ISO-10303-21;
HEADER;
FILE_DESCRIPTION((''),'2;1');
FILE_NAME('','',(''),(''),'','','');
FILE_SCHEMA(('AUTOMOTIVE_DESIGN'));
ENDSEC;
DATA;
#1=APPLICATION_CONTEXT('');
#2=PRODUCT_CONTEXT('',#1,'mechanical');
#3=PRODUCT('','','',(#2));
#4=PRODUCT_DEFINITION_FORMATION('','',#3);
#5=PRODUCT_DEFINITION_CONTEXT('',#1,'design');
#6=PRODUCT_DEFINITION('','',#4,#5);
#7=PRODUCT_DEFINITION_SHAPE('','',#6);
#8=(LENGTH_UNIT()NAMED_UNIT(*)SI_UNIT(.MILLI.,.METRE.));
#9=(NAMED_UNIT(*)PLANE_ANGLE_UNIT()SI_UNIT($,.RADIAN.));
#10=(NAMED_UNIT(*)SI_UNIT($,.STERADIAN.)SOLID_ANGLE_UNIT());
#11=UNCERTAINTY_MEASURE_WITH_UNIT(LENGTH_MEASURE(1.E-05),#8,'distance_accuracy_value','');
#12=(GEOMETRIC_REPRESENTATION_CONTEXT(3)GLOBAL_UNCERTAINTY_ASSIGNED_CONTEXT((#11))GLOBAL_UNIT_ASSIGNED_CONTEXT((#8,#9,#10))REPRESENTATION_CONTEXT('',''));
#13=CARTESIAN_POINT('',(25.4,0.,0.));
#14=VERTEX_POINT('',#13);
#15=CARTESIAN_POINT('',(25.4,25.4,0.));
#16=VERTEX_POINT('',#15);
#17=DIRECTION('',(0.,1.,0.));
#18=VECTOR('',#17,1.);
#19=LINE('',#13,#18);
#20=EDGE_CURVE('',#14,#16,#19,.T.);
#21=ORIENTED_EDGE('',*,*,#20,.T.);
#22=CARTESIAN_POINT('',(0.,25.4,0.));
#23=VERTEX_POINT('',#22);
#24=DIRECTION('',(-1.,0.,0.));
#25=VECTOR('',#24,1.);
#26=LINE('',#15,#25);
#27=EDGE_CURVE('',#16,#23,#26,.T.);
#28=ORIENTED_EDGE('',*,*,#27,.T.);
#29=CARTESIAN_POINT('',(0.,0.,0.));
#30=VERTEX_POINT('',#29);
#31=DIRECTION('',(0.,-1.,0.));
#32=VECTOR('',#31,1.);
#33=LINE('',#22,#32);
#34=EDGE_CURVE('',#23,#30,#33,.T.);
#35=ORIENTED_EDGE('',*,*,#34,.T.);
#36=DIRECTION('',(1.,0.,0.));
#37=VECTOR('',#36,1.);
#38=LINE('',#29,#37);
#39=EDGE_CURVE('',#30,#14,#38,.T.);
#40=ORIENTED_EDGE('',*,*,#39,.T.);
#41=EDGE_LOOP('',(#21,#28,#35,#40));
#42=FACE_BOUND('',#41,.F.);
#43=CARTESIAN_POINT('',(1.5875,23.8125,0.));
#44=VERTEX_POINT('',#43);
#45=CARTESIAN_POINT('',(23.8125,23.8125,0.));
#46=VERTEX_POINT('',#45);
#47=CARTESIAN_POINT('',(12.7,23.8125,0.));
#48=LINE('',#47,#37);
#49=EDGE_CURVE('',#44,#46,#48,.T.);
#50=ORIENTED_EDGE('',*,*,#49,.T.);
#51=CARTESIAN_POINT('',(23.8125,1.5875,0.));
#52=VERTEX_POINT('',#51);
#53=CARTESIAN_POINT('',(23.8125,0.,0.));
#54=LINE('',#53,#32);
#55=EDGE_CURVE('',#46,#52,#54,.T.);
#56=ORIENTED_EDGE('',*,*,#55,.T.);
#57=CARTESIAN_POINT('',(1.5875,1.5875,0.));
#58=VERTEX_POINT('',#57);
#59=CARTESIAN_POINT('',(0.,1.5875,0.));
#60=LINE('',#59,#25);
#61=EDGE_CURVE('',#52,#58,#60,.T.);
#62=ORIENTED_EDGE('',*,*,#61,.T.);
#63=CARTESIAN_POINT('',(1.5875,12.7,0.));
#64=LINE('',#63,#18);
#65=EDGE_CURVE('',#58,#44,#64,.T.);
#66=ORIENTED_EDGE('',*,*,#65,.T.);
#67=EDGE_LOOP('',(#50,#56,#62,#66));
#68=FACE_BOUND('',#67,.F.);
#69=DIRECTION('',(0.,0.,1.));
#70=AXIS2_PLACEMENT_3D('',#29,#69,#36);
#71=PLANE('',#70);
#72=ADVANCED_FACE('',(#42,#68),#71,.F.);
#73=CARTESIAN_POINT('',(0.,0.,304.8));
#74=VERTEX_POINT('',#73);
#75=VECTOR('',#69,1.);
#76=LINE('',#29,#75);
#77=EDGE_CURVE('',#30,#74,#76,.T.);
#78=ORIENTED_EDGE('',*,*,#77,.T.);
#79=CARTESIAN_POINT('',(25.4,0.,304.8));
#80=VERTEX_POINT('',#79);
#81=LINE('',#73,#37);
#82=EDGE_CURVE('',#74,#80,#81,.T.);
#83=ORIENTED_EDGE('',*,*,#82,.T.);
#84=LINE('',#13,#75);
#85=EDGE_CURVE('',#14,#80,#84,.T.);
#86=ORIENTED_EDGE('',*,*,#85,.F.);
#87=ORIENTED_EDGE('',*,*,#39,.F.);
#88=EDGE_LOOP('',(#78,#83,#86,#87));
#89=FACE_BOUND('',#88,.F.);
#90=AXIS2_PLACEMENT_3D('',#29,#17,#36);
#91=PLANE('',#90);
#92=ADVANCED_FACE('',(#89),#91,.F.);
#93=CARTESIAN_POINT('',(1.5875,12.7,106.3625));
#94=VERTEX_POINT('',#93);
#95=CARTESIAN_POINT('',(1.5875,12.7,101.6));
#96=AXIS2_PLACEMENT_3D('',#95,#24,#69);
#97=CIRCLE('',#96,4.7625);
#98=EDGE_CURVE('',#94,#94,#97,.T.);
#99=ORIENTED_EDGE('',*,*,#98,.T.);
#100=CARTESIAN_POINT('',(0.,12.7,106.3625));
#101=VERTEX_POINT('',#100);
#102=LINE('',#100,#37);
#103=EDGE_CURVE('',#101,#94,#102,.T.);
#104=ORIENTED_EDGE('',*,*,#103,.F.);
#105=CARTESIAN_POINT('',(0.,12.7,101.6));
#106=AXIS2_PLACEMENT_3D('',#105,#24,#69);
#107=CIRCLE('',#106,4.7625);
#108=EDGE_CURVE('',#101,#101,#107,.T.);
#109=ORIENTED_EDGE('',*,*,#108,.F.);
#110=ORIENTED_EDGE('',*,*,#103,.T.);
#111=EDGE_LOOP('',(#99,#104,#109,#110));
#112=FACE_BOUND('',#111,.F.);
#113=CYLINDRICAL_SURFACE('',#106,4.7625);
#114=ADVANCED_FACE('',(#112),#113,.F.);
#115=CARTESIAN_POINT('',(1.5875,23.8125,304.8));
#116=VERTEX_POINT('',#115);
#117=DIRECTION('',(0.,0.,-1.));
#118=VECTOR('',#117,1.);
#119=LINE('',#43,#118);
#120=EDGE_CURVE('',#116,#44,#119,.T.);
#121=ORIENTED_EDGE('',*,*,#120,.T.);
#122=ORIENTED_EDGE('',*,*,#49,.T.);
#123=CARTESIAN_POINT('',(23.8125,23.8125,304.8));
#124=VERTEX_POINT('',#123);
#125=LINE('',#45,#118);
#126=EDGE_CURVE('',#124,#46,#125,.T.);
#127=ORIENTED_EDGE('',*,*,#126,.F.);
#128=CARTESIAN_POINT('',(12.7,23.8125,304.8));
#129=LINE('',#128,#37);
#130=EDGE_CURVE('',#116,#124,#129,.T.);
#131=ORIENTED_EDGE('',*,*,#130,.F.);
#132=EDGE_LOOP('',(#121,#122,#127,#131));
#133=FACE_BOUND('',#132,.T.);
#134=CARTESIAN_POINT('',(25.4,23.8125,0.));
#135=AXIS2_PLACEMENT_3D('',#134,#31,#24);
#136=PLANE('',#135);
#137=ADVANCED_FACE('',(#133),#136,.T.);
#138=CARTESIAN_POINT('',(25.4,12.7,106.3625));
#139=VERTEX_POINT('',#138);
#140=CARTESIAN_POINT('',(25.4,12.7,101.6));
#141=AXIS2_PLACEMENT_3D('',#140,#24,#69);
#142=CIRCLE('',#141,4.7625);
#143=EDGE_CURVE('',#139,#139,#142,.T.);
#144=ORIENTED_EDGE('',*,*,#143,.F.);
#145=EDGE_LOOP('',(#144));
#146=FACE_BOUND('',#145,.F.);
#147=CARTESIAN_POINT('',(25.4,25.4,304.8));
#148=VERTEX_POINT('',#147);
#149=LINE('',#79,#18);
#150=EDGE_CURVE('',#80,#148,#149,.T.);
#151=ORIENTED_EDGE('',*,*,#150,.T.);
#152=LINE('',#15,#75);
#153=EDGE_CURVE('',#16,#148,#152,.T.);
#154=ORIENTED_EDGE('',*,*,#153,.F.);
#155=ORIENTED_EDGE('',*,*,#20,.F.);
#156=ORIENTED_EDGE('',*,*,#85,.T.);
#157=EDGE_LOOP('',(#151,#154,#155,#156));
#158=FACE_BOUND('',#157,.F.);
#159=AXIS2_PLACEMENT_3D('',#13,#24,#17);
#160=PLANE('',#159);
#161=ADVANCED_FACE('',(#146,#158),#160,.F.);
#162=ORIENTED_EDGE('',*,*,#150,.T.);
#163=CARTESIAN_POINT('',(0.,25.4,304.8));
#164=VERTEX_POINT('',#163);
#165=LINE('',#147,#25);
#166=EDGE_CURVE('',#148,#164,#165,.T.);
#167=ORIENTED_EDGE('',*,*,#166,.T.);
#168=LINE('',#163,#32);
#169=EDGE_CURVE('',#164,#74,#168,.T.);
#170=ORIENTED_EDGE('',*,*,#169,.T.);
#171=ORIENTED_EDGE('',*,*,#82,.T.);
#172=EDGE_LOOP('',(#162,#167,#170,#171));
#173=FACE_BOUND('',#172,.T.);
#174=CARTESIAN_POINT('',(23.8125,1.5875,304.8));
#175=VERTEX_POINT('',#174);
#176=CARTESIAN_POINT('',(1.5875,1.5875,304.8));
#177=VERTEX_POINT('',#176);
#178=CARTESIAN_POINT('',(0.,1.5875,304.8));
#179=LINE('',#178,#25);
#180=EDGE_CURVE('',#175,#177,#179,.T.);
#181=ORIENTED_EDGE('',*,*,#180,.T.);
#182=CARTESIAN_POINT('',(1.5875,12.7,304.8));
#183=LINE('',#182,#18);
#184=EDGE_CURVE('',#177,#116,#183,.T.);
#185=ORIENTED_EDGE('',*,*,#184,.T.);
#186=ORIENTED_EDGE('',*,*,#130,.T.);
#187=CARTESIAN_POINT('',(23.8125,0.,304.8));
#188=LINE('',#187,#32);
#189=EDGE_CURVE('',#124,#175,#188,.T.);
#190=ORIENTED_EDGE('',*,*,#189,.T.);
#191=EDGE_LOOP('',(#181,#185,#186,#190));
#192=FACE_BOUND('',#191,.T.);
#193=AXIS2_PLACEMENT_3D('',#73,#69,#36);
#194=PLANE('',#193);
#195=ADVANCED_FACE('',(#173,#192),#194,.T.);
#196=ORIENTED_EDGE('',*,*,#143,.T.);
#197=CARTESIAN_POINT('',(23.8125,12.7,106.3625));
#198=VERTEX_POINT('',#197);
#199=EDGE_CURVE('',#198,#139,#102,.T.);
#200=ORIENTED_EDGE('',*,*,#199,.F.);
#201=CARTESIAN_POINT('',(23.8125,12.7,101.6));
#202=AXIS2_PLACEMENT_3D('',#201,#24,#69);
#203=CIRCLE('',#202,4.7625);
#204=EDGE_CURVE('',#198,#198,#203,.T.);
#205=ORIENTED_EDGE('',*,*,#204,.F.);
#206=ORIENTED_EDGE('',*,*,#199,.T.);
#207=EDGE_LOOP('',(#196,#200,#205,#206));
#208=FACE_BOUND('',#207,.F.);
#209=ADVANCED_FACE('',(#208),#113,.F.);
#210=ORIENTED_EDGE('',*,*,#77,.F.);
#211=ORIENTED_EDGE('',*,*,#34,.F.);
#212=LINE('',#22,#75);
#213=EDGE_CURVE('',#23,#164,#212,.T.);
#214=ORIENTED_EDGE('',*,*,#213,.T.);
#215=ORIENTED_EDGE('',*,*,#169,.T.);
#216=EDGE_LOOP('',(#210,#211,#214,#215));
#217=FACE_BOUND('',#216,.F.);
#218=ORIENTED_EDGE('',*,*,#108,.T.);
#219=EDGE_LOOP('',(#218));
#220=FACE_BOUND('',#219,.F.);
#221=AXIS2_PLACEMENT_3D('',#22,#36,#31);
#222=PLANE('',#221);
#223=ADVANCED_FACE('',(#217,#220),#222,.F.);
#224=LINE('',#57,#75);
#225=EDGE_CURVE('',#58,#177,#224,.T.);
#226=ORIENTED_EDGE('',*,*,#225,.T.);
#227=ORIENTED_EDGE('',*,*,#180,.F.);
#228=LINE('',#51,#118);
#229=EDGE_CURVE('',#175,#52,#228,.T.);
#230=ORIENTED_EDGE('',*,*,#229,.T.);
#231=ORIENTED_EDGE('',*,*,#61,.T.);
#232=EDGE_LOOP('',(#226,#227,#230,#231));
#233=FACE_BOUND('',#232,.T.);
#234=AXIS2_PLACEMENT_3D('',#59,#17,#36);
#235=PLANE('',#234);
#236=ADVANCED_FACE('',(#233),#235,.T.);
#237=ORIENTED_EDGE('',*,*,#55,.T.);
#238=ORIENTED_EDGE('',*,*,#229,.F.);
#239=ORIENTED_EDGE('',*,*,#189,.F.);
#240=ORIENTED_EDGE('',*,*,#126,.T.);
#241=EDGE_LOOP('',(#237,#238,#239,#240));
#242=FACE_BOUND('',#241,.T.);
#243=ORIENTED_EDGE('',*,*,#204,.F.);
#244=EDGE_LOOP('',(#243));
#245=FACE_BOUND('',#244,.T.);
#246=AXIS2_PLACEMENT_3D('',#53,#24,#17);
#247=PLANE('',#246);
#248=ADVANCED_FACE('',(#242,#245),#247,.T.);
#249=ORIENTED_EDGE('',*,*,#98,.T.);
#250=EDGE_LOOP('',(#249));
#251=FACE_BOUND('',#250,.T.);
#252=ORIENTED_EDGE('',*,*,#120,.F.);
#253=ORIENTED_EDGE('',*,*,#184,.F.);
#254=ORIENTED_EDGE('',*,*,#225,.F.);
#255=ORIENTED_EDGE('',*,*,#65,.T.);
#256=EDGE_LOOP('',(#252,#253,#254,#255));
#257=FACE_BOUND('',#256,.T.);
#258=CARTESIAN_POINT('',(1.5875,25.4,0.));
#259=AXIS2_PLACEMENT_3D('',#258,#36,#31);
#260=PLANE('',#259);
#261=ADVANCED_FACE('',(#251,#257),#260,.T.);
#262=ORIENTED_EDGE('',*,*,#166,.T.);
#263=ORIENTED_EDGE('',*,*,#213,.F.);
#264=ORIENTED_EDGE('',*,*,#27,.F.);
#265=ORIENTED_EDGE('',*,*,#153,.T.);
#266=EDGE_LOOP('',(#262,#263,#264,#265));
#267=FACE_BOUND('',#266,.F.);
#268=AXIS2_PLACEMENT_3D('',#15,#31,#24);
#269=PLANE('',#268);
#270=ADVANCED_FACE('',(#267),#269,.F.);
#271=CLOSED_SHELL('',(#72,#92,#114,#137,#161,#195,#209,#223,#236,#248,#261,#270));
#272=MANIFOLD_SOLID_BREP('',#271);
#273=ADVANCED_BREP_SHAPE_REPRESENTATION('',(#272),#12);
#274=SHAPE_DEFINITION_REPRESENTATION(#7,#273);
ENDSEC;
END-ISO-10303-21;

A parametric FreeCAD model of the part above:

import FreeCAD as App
import Part
import Sketcher
from FreeCAD import Vector
Q = App.Units.Quantity


def faces_at(feature, points):
    """Names of the faces that lie closest to the given points."""
    faces = feature.Shape.Faces
    near = lambda p: min(range(len(faces)), key=lambda i: faces[i].distToShape(Part.Vertex(*p))[0])
    return sorted({f"Face{near(p) + 1}" for p in points})


def add_polygon(sketch, points):
    """Adds a closed chain of lines whose ends are joined by coincident constraints."""
    first, n = sketch.GeometryCount, len(points)
    for a, b in zip(points, points[1:] + points[:1]):
        sketch.addGeometry(Part.LineSegment(App.Vector(*a, 0), App.Vector(*b, 0)), False)
    for i in range(n):
        sketch.addConstraint(Sketcher.Constraint("Coincident", first + i, 2, first + (i + 1) % n, 1))

doc = App.newDocument("Part")
body = doc.addObject("PartDesign::Body", "Body")

# Sketch on XY plane
sketch1 = body.newObject("Sketcher::SketchObject", "Sketch")
sketch1.AttachmentSupport = (doc.getObject("XY_Plane"), [""])
sketch1.MapMode = "FlatFace"
add_polygon(sketch1, [(0, 25), (0, 0), (25, 0), (25, 25)])  # lines 0-3
sketch1.addConstraint(Sketcher.Constraint("Vertical", 0))
sketch1.addConstraint(Sketcher.Constraint("Horizontal", 1))
sketch1.addConstraint(Sketcher.Constraint("Vertical", 2))
sketch1.addConstraint(Sketcher.Constraint("Horizontal", 3))
sketch1.addConstraint(Sketcher.Constraint("Coincident", 0, 2, -1, 1))
sketch1.addConstraint(Sketcher.Constraint("Equal", 3, 0))
sketch1.addConstraint(Sketcher.Constraint("DistanceX", 1, 1, 1, 2, Q("1 in")))
pad1 = body.newObject("PartDesign::Pad", "Pad")
pad1.Profile = sketch1
pad1.Length = Q("12 in")
doc.recompute()

thickness = body.newObject("PartDesign::Thickness", "Thickness")
thickness.Base = (pad1, faces_at(pad1, [(8.467, 16.933, 0), (8.467, 16.933, 304.8)]))
thickness.Value = Q("0.0625 in")
thickness.Reversed = True
thickness.Join = "Intersection"

# Sketch on YZ plane
sketch2 = body.newObject("Sketcher::SketchObject", "Sketch001")
sketch2.AttachmentSupport = (doc.getObject("YZ_Plane"), [""])
sketch2.MapMode = "FlatFace"
sketch2.addGeometry(Part.Circle(Vector(12.7, 101.6, 0), Vector(0, 0, 1), 4.8), False)
sketch2.addConstraint(Sketcher.Constraint("Diameter", 0, Q("0.375 in")))
sketch2.addConstraint(Sketcher.Constraint("DistanceX", -1, 1, 0, 3, Q("0.5 in")))
sketch2.addConstraint(Sketcher.Constraint("DistanceY", -1, 1, 0, 3, Q("4 in")))
pocket1 = body.newObject("PartDesign::Pocket", "Pocket")
pocket1.Profile = sketch2
pocket1.Type = "ThroughAll"
pocket1.Reversed = True

doc.recompute()
